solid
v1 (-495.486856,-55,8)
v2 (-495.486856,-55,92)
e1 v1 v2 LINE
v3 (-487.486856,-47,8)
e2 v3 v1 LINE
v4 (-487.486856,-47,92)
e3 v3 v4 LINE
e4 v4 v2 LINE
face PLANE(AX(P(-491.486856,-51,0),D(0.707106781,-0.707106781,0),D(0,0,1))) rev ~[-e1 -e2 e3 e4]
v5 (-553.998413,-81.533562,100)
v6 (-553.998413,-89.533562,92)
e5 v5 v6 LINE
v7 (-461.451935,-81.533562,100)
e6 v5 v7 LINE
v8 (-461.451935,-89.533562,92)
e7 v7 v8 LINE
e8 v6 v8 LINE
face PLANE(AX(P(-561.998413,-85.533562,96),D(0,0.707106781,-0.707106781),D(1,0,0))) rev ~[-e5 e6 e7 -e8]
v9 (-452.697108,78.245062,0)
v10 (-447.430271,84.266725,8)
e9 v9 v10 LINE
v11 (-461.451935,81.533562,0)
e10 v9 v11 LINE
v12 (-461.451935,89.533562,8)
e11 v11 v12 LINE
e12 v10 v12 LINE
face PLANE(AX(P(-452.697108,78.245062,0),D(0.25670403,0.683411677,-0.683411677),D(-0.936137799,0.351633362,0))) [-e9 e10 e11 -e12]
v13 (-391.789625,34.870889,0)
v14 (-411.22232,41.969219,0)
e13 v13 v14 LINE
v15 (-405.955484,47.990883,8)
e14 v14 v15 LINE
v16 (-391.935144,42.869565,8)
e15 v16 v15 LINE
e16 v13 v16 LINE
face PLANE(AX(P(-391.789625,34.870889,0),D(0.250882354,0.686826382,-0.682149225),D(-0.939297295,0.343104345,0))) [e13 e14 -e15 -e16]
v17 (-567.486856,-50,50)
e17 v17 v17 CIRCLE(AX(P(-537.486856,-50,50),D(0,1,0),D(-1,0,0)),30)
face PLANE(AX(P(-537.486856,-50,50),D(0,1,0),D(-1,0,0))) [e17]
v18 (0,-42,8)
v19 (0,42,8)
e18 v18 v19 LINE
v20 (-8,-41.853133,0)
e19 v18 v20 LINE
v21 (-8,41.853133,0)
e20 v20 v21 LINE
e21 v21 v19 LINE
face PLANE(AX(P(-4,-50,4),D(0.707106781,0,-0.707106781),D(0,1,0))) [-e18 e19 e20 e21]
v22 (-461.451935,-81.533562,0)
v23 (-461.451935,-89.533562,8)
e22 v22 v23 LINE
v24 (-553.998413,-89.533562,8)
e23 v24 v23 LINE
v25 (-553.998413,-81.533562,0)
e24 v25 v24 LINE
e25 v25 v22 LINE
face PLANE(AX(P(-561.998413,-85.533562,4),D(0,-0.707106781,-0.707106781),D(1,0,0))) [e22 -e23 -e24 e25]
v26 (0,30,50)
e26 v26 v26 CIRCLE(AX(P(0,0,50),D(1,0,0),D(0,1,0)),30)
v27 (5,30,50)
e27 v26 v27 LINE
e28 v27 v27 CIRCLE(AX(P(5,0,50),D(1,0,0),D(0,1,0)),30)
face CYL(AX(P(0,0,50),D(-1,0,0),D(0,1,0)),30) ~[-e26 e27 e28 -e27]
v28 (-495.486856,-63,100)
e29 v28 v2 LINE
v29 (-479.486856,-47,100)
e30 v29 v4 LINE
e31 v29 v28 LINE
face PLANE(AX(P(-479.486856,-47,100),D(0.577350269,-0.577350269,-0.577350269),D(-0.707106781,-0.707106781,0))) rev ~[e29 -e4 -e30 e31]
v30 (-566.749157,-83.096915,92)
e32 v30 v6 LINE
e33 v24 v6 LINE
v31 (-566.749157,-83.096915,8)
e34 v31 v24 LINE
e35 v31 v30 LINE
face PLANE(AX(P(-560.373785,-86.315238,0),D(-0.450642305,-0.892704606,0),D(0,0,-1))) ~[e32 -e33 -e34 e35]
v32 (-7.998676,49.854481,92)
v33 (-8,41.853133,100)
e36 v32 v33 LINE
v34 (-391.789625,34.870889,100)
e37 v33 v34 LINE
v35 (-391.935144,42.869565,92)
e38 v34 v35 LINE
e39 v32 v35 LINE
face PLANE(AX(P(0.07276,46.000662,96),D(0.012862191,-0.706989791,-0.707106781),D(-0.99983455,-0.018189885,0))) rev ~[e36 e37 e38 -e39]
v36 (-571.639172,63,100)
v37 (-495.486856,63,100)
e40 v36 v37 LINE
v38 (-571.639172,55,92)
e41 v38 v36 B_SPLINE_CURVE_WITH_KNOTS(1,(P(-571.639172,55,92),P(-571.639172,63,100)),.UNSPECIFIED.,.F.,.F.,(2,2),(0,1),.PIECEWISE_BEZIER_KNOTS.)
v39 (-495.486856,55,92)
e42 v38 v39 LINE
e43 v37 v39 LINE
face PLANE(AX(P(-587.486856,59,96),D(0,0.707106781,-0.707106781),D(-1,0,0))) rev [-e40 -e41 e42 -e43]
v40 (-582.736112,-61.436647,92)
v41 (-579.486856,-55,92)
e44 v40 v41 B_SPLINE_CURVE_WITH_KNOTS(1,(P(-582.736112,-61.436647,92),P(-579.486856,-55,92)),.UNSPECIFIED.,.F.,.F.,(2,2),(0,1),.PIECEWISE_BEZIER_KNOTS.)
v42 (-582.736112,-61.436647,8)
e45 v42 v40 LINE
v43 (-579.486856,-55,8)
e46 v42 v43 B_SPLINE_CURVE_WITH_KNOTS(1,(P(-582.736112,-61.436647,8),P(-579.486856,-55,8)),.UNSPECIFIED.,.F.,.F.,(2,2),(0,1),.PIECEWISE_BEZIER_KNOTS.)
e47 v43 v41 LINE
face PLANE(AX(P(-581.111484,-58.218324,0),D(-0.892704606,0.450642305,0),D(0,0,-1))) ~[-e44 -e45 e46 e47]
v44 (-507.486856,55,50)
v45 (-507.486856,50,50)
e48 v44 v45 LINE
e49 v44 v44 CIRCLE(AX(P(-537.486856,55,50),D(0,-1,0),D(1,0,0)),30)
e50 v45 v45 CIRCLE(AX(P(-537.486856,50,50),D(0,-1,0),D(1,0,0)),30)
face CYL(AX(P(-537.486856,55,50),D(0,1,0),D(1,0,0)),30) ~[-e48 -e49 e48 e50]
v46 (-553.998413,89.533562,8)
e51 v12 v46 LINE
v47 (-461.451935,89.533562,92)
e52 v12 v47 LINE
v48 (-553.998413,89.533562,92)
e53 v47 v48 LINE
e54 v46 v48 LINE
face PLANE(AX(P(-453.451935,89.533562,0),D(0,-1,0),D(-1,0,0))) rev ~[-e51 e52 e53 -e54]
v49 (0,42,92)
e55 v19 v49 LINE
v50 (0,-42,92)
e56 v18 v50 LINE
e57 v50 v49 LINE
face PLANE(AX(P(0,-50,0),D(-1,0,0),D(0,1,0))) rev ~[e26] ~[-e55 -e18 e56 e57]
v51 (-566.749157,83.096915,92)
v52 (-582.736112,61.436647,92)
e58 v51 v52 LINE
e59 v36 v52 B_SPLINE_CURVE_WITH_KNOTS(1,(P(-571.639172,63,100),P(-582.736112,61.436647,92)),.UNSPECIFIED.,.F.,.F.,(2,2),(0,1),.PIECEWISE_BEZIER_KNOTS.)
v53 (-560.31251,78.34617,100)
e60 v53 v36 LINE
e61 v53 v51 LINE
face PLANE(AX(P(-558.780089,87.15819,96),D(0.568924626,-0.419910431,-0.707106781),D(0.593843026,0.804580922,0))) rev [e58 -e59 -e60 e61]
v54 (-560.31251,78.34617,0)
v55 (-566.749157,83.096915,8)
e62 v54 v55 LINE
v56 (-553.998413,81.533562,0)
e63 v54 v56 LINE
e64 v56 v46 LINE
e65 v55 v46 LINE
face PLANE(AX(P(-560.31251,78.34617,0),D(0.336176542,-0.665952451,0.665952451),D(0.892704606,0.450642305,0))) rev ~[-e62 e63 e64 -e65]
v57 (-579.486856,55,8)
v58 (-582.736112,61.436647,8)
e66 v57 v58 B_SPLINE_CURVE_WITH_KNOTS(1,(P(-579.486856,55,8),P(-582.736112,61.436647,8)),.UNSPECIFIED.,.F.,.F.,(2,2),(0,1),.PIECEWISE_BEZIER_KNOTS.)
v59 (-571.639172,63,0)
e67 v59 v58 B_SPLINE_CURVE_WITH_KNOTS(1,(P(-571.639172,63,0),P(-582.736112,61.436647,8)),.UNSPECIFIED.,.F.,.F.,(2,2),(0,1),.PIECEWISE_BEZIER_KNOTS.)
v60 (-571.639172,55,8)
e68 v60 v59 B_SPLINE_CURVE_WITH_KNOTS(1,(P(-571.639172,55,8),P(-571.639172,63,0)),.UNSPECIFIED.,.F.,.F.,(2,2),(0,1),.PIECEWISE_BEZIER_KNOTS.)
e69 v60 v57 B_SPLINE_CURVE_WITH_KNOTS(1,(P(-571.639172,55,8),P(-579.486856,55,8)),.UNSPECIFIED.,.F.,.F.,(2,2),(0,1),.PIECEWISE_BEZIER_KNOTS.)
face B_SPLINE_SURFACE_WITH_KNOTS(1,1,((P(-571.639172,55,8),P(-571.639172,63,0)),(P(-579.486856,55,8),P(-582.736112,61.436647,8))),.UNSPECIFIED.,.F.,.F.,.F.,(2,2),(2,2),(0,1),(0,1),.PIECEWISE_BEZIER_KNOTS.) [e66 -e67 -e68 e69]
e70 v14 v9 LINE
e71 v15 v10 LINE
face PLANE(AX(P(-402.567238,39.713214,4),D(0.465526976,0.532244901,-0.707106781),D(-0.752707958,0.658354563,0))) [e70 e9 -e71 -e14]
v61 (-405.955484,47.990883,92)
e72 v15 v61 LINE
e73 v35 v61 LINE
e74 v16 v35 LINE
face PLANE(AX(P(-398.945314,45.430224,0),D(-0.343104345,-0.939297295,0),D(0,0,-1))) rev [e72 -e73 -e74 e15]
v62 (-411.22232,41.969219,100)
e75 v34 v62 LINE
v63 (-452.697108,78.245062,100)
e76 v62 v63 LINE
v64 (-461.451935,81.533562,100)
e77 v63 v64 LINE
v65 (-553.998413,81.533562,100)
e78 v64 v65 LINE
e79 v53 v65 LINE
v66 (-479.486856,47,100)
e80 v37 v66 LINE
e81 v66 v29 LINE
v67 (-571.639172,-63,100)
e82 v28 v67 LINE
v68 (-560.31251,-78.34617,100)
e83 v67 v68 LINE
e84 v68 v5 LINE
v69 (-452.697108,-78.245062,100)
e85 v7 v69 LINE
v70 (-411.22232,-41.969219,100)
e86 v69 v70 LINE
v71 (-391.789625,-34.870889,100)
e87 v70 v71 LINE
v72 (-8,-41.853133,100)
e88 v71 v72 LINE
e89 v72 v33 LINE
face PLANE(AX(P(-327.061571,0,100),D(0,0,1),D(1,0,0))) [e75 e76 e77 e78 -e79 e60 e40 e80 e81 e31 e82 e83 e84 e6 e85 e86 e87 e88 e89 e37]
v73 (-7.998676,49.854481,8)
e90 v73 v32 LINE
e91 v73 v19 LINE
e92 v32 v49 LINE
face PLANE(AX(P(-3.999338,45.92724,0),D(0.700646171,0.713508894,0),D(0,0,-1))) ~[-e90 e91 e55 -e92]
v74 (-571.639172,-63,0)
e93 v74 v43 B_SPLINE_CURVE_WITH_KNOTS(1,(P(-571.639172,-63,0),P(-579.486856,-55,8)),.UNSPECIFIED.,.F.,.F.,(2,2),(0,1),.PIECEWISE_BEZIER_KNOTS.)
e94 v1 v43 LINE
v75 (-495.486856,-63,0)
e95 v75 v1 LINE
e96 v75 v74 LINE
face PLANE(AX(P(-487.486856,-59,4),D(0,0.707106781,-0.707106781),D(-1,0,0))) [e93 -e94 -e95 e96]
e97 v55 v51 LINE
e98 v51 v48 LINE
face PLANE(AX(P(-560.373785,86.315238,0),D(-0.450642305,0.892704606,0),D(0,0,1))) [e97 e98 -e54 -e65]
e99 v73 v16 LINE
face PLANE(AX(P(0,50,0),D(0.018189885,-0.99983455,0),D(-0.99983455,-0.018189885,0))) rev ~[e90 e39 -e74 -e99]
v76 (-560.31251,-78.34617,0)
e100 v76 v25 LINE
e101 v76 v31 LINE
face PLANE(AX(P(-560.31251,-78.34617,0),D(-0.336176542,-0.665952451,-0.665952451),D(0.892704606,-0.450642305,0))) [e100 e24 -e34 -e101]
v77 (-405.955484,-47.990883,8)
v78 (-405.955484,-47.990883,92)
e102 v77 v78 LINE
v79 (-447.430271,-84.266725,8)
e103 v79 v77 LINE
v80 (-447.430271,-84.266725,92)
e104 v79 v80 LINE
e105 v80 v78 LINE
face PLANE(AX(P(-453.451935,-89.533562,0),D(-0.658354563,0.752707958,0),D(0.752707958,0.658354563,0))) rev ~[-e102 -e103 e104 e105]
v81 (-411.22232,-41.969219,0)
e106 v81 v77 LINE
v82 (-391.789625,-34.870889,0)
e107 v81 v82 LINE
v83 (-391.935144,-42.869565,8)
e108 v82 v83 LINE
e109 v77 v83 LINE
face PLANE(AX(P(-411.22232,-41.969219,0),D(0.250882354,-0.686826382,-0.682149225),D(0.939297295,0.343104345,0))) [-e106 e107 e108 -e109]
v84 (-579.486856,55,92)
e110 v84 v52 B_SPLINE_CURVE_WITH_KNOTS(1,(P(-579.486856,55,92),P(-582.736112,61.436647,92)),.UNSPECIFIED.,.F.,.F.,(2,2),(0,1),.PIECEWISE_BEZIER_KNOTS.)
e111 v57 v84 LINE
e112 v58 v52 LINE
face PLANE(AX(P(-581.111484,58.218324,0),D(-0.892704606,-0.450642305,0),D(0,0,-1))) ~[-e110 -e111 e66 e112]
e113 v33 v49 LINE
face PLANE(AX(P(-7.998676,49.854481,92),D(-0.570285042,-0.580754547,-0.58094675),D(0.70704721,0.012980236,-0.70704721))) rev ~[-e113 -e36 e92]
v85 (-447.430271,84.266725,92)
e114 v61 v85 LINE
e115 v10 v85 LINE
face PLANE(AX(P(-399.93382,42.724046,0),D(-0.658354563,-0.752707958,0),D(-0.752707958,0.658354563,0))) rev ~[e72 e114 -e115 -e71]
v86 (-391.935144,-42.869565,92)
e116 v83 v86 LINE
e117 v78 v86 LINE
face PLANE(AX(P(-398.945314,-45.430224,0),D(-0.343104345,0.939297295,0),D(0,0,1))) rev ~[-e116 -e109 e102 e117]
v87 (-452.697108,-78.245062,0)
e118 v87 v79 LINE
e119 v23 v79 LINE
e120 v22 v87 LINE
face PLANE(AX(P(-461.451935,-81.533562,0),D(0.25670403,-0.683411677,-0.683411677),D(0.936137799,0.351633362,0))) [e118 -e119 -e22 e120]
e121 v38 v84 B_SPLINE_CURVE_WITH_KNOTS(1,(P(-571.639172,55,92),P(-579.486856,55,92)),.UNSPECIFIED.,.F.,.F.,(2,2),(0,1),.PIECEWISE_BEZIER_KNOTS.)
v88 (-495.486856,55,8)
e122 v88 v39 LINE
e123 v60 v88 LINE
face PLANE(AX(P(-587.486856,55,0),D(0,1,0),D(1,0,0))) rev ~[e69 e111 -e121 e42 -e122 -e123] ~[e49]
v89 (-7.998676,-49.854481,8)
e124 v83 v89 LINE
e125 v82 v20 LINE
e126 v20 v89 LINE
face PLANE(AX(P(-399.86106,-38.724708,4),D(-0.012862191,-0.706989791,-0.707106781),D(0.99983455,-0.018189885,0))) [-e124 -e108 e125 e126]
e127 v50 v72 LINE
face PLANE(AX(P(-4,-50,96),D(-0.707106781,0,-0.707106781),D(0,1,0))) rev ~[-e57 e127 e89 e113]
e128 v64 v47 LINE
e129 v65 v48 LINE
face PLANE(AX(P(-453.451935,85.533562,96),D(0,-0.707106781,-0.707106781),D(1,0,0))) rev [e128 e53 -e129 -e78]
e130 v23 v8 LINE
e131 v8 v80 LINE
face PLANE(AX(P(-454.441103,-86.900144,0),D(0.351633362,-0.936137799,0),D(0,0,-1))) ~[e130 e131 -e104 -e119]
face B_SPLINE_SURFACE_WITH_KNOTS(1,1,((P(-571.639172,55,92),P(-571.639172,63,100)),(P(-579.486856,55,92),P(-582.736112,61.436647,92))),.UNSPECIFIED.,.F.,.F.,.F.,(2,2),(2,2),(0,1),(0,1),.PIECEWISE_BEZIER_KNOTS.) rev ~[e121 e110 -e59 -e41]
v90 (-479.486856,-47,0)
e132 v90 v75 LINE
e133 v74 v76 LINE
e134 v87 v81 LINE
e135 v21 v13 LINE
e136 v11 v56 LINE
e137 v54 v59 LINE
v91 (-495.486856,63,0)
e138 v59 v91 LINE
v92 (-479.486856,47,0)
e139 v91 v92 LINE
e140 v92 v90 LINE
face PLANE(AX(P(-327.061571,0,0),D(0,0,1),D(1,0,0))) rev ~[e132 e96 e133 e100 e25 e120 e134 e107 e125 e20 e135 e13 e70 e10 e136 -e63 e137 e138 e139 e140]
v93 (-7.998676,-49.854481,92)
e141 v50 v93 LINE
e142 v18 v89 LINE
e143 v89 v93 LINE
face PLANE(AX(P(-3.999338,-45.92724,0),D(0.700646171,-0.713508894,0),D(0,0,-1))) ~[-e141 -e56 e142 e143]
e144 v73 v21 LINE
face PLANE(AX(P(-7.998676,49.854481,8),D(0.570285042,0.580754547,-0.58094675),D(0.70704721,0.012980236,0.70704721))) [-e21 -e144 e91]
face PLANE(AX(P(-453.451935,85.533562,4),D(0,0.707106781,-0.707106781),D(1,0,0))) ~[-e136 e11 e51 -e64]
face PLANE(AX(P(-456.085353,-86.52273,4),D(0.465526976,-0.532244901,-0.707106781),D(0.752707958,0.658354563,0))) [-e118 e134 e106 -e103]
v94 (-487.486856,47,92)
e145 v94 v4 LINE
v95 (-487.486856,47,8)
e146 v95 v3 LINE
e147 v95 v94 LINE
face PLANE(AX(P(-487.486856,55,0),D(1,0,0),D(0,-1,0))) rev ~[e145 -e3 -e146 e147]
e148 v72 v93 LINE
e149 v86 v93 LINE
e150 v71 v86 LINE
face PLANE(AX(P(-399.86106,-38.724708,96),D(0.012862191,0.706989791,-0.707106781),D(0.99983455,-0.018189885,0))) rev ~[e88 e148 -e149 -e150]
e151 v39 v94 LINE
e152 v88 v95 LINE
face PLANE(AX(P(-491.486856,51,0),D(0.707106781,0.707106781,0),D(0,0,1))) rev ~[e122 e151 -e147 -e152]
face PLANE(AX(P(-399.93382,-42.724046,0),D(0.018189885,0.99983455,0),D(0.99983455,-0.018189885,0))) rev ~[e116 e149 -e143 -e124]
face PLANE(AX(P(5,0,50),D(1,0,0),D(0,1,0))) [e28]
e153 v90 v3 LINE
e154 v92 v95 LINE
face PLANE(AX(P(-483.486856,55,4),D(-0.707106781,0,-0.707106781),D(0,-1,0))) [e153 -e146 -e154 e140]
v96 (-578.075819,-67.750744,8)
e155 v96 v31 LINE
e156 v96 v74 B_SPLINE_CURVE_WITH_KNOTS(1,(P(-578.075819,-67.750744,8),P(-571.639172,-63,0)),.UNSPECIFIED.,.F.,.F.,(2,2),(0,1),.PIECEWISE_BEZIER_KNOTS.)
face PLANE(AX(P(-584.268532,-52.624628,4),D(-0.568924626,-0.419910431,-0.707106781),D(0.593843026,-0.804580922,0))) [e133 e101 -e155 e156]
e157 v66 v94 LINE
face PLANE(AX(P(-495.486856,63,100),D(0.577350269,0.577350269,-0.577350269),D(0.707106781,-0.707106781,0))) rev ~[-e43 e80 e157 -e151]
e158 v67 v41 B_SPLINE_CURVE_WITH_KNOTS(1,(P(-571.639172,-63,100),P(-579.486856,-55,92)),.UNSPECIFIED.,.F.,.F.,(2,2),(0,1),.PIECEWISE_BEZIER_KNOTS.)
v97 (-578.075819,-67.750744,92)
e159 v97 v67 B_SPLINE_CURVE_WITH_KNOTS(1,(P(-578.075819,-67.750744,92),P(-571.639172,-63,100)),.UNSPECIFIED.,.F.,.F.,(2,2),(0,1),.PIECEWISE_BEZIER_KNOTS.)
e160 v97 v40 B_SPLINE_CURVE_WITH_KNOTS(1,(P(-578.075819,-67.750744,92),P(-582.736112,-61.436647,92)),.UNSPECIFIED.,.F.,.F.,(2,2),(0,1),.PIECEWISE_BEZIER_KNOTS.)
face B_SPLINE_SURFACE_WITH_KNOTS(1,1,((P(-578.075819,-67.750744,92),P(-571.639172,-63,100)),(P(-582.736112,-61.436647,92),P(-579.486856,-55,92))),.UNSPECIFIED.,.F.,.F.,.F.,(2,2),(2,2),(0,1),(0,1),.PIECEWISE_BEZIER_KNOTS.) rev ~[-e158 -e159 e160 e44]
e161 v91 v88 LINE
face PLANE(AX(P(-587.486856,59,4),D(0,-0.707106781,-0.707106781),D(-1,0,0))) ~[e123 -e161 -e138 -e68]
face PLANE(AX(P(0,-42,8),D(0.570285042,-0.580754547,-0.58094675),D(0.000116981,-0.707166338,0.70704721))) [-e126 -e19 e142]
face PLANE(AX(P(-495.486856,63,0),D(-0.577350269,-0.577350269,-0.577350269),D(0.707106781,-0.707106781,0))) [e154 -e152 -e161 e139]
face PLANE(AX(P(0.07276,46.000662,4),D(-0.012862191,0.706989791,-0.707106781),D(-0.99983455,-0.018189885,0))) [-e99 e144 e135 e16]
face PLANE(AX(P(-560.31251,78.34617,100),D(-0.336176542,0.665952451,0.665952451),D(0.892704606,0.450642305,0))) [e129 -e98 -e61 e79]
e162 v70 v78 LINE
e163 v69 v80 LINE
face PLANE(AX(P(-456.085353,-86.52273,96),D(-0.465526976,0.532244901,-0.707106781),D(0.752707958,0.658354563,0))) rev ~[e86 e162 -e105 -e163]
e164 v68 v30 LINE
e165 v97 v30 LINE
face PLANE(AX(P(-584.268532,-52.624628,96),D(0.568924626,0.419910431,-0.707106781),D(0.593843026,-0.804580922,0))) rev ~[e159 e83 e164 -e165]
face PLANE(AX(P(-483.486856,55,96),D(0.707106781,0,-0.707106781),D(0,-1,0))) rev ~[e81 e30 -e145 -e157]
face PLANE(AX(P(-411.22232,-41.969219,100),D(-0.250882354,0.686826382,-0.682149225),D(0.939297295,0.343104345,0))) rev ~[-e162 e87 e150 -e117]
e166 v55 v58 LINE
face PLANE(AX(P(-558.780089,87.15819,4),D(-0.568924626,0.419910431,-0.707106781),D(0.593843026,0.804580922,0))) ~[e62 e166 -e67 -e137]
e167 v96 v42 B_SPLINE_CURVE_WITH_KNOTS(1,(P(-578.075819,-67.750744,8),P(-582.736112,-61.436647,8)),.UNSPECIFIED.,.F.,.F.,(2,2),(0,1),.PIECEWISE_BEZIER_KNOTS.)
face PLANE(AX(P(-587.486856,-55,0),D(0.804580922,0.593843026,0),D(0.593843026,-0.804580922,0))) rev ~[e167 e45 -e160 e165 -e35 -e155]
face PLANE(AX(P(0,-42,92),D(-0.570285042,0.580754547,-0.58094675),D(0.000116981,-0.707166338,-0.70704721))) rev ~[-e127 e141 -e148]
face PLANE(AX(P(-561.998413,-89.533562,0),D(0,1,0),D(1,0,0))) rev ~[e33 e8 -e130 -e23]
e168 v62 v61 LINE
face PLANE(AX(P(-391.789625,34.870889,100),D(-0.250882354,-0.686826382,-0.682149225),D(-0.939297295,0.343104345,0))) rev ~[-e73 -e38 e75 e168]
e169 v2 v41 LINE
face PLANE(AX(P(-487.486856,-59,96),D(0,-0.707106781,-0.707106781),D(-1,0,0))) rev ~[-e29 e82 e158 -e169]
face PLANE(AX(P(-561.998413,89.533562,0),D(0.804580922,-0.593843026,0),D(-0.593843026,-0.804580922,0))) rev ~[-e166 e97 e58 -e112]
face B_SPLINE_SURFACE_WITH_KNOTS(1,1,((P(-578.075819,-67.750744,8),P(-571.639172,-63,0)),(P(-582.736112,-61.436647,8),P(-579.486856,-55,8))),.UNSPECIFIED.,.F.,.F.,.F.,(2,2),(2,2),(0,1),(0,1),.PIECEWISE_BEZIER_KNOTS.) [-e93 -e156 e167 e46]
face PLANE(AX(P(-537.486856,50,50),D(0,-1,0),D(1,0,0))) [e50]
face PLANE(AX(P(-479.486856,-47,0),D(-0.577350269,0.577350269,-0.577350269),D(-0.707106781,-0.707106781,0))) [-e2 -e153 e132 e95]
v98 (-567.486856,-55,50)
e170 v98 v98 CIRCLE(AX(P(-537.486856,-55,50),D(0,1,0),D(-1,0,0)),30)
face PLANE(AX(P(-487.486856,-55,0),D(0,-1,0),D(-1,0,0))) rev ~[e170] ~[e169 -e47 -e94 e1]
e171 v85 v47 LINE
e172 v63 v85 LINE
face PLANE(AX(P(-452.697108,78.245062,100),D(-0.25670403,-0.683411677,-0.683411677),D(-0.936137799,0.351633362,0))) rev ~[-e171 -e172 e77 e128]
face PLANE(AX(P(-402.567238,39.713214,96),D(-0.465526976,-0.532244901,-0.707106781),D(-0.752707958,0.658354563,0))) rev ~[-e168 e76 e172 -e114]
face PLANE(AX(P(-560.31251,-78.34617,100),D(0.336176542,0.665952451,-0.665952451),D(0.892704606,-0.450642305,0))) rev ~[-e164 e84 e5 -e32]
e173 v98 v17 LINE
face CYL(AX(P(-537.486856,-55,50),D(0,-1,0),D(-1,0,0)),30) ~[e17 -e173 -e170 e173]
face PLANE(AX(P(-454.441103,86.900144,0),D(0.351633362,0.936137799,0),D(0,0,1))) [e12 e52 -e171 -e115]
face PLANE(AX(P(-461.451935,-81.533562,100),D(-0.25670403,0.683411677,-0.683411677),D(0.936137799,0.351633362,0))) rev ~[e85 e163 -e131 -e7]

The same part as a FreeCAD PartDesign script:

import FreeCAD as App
import Part
import Sketcher

V = App.Vector
Q = App.Units.Quantity


def edges_at(feature, points):
    """Names of the edges that pass closest to the given points."""
    edges = feature.Shape.Edges
    near = lambda p: min(range(len(edges)), key=lambda i: edges[i].distToShape(Part.Vertex(*p))[0])
    return sorted({f"Edge{near(p) + 1}" for p in points})


def add_polygon(sketch, points):
    """Adds a closed chain of lines whose ends are joined by coincident constraints."""
    first, n = sketch.GeometryCount, len(points)
    for a, b in zip(points, points[1:] + points[:1]):
        sketch.addGeometry(Part.LineSegment(App.Vector(*a, 0), App.Vector(*b, 0)), False)
    for i in range(n):
        sketch.addConstraint(Sketcher.Constraint("Coincident", first + i, 2, first + (i + 1) % n, 1))

doc = App.newDocument("Part")
body = doc.addObject("PartDesign::Body", "Body")

sketch1 = body.newObject("Sketcher::SketchObject", "Sketch")
sketch1.AttachmentSupport = (doc.getObject("XY_Plane"), [""])
sketch1.MapMode = "FlatFace"
add_polygon(sketch1, [(-561.998413, 89.533562), (-587.486856, 55), (-487.486856, 55), (-487.486856, -55), (-587.486856, -55), (-561.998413, -89.533562), (-453.451935, -89.533562), (-399.93382, -42.724046), (0, -50), (0, 50), (-399.93382, 42.724046), (-453.451935, 89.533562)])
sketch1.addConstraint([
    Sketcher.Constraint("Horizontal", 1),
    Sketcher.Constraint("Vertical", 2),
    Sketcher.Constraint("Horizontal", 3),
    Sketcher.Constraint("Horizontal", 5),
    Sketcher.Constraint("Vertical", 8),
    Sketcher.Constraint("Horizontal", 11),
    Sketcher.Constraint("Symmetric", 7, 2, 8, 2, -1, 1),
    Sketcher.Constraint("Symmetric", 0, 2, 3, 2, -1),
    Sketcher.Constraint("Symmetric", 6, 2, 9, 2, -1),
    Sketcher.Constraint("Symmetric", 5, 2, 10, 2, -1),
    Sketcher.Constraint("Vertical", 4, 2, 11, 2),
    Sketcher.Constraint("Equal", 3, 8),
    Sketcher.Constraint("DistanceX", 1, 1, 1, 2, Q("100 mm")),
    Sketcher.Constraint("DistanceY", 2, 2, 2, 1, Q("110 mm")),
    Sketcher.Constraint("Distance", 7, Q("400 mm")),
    Sketcher.Constraint("DistanceX", 5, 1, 5, 2, Q("108.546478 mm")),
    Sketcher.Constraint("Distance", 0, Q("42.921179 mm")),
    Sketcher.Constraint("Distance", 6, Q("71.100769 mm")),
    Sketcher.Constraint("DistanceX", 6, 2, -1, 1, Q("399.93382 mm")),
    Sketcher.Constraint("DistanceX", 2, 2, 5, 2, Q("34.034921 mm")),
])
pad1 = body.newObject("PartDesign::Pad", "Pad")
pad1.Profile = sketch1
pad1.Length = 100

sketch2 = body.newObject("Sketcher::SketchObject", "Sketch001")
sketch2.AttachmentSupport = (doc.getObject("YZ_Plane"), [""])
sketch2.MapMode = "FlatFace"
sketch2.addGeometry(Part.Circle(V(0, 50, 0), V(0, 0, 1), 30), False)
sketch2.addConstraint([
    Sketcher.Constraint("PointOnObject", 0, 3, -2),
    Sketcher.Constraint("Diameter", 0, Q("60 mm")),
    Sketcher.Constraint("DistanceY", -1, 1, 0, 3, Q("50 mm")),
])
pad2 = body.newObject("PartDesign::Pad", "Pad001")
pad2.Profile = sketch2
pad2.Length = 5

sketch3 = body.newObject("Sketcher::SketchObject", "Sketch002")
sketch3.AttachmentSupport = (doc.getObject("XZ_Plane"), [""])
sketch3.MapMode = "FlatFace"
sketch3.AttachmentOffset = App.Placement(V(0, 0, -55), App.Rotation())
sketch3.addGeometry(Part.Circle(V(-537.486856, 50, 0), V(0, 0, 1), 30), False)
sketch3.addConstraint([
    Sketcher.Constraint("Diameter", 0, Q("60 mm")),
    Sketcher.Constraint("DistanceY", -1, 1, 0, 3, Q("50 mm")),
    Sketcher.Constraint("DistanceX", 0, 3, -1, 1, Q("537.486856 mm")),
])
pad3 = body.newObject("PartDesign::Pad", "Pad002")
pad3.Profile = sketch3
pad3.Length = 5

sketch4 = body.newObject("Sketcher::SketchObject", "Sketch003")
sketch4.AttachmentSupport = (doc.getObject("XZ_Plane"), [""])
sketch4.MapMode = "FlatFace"
sketch4.AttachmentOffset = App.Placement(V(0, 0, 55), App.Rotation())
sketch4.addGeometry(Part.Circle(V(-537.486856, 50, 0), V(0, 0, 1), 30), False)
sketch4.addConstraint([
    Sketcher.Constraint("Diameter", 0, Q("60 mm")),
    Sketcher.Constraint("DistanceY", -1, 1, 0, 3, Q("50 mm")),
    Sketcher.Constraint("DistanceX", 0, 3, -1, 1, Q("537.486856 mm")),
])
pad4 = body.newObject("PartDesign::Pad", "Pad003")
pad4.Profile = sketch4
pad4.Length = 5
pad4.Reversed = True
doc.recompute()

chamfer = body.newObject("PartDesign::Chamfer", "Chamfer")
chamfer.Base = (pad4, edges_at(pad4, [
    (-574.743, 72.267, 100),
    (-537.487, 55, 100),
    (-487.487, 0, 100),
    (-537.487, -55, 100),
    (-574.743, -72.267, 100),
    (-507.725, -89.534, 100),
    (-426.693, -66.129, 100),
    (-199.967, -46.362, 100),
    (0, 0, 100),
    (-199.967, 46.362, 100),
    (-426.693, 66.129, 100),
    (-507.725, 89.534, 100),
    (-574.743, 72.267, 0),
    (-537.487, 55, 0),
    (-487.487, 0, 0),
    (-537.487, -55, 0),
    (-574.743, -72.267, 0),
    (-507.725, -89.534, 0),
    (-426.693, -66.129, 0),
    (-199.967, -46.362, 0),
    (0, 0, 0),
    (-199.967, 46.362, 0),
    (-426.693, 66.129, 0),
    (-507.725, 89.534, 0),
    (-561.998, -89.534, 50),
    (-453.452, -89.534, 50),
    (-399.934, -42.724, 50),
    (0, -50, 50),
    (0, 50, 50),
    (-399.934, 42.724, 50),
    (-453.452, 89.534, 50),
    (-561.998, 89.534, 50),
    (-487.487, 55, 50),
    (-487.487, -55, 50),
    (-587.487, 55, 50),
    (-587.487, -55, 50),
]))
chamfer.Size = 8

doc.recompute()
